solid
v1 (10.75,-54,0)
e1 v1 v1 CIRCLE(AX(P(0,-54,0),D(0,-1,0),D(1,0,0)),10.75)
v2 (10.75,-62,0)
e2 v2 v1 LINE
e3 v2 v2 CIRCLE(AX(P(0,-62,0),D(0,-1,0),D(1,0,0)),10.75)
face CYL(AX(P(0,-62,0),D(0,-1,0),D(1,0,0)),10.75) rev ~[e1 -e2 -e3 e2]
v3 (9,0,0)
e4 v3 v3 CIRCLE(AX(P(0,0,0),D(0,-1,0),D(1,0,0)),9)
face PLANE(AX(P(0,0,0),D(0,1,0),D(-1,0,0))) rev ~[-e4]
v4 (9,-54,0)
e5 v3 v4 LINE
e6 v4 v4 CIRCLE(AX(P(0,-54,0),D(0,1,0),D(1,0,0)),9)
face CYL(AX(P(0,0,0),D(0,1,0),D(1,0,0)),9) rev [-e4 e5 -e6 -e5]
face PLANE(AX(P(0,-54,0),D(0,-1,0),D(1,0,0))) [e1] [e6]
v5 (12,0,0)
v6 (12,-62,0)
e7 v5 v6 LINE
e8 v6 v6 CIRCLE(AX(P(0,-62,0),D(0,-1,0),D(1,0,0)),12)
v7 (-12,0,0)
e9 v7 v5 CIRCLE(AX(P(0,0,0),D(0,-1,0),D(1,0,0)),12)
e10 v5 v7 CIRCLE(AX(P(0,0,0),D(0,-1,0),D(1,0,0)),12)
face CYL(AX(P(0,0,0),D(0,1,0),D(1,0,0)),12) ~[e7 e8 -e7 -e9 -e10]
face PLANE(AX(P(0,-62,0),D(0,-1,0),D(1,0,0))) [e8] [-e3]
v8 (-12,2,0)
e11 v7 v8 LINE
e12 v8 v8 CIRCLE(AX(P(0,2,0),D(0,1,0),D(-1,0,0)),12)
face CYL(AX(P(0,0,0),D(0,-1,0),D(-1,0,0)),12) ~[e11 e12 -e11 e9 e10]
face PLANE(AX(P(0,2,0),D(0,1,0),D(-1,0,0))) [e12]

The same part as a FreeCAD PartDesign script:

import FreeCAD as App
import Part
import Sketcher
from FreeCAD import Vector
Q = App.Units.Quantity

doc = App.newDocument("Part")
body = doc.addObject("PartDesign::Body", "Body")

# Sketch on XZ plane
sketch1 = doc.addObject("Sketcher::SketchObject", "Sketch")
body.addObject(sketch1)
sketch1.AttachmentSupport = (doc.XZ_Plane, [""])
sketch1.MapMode = "FlatFace"
sketch1.addGeometry([
    Part.Circle(Vector(0, 0, 0), Vector(0, 0, 1), 12),
    Part.Circle(Vector(0, 0, 0), Vector(0, 0, 1), 9),
], False)
sketch1.addConstraint([
    Sketcher.Constraint("Coincident", 0, 3, -1, 1),
    Sketcher.Constraint("Coincident", 1, 3, -1, 1),
    Sketcher.Constraint("Diameter", 0, Q("24 mm")),
    Sketcher.Constraint("Diameter", 1, Q("18 mm")),
])
pad1 = doc.addObject("PartDesign::Pad", "Pad")
body.addObject(pad1)
pad1.Profile = sketch1
pad1.Length = 62

# Sketch on XZ plane
sketch2 = doc.addObject("Sketcher::SketchObject", "Sketch001")
body.addObject(sketch2)
sketch2.AttachmentSupport = (doc.XZ_Plane, [""])
sketch2.MapMode = "FlatFace"
sketch2.addGeometry(Part.Circle(Vector(0, 0, 0), Vector(0, 0, 1), 12), False)
sketch2.addConstraint([
    Sketcher.Constraint("Coincident", 0, 3, -1, 1),
    Sketcher.Constraint("Diameter", 0, Q("24 mm")),
])
pad2 = doc.addObject("PartDesign::Pad", "Pad001")
body.addObject(pad2)
pad2.Profile = sketch2
pad2.Length = 2
pad2.Reversed = True

# Sketch on XZ plane
sketch3 = doc.addObject("Sketcher::SketchObject", "Sketch002")
body.addObject(sketch3)
sketch3.AttachmentSupport = (doc.XZ_Plane, [""])
sketch3.MapMode = "FlatFace"
sketch3.AttachmentOffset = App.Placement(Vector(0, 0, 62), App.Rotation())
sketch3.addGeometry(Part.Circle(Vector(0, 0, 0), Vector(0, 0, 1), 11), False)
sketch3.addConstraint([
    Sketcher.Constraint("Coincident", 0, 3, -1, 1),
    Sketcher.Constraint("Diameter", 0, Q("21.5 mm")),
])
pocket1 = doc.addObject("PartDesign::Pocket", "Pocket")
body.addObject(pocket1)
pocket1.Profile = sketch3
pocket1.Length = 8

doc.recompute()
